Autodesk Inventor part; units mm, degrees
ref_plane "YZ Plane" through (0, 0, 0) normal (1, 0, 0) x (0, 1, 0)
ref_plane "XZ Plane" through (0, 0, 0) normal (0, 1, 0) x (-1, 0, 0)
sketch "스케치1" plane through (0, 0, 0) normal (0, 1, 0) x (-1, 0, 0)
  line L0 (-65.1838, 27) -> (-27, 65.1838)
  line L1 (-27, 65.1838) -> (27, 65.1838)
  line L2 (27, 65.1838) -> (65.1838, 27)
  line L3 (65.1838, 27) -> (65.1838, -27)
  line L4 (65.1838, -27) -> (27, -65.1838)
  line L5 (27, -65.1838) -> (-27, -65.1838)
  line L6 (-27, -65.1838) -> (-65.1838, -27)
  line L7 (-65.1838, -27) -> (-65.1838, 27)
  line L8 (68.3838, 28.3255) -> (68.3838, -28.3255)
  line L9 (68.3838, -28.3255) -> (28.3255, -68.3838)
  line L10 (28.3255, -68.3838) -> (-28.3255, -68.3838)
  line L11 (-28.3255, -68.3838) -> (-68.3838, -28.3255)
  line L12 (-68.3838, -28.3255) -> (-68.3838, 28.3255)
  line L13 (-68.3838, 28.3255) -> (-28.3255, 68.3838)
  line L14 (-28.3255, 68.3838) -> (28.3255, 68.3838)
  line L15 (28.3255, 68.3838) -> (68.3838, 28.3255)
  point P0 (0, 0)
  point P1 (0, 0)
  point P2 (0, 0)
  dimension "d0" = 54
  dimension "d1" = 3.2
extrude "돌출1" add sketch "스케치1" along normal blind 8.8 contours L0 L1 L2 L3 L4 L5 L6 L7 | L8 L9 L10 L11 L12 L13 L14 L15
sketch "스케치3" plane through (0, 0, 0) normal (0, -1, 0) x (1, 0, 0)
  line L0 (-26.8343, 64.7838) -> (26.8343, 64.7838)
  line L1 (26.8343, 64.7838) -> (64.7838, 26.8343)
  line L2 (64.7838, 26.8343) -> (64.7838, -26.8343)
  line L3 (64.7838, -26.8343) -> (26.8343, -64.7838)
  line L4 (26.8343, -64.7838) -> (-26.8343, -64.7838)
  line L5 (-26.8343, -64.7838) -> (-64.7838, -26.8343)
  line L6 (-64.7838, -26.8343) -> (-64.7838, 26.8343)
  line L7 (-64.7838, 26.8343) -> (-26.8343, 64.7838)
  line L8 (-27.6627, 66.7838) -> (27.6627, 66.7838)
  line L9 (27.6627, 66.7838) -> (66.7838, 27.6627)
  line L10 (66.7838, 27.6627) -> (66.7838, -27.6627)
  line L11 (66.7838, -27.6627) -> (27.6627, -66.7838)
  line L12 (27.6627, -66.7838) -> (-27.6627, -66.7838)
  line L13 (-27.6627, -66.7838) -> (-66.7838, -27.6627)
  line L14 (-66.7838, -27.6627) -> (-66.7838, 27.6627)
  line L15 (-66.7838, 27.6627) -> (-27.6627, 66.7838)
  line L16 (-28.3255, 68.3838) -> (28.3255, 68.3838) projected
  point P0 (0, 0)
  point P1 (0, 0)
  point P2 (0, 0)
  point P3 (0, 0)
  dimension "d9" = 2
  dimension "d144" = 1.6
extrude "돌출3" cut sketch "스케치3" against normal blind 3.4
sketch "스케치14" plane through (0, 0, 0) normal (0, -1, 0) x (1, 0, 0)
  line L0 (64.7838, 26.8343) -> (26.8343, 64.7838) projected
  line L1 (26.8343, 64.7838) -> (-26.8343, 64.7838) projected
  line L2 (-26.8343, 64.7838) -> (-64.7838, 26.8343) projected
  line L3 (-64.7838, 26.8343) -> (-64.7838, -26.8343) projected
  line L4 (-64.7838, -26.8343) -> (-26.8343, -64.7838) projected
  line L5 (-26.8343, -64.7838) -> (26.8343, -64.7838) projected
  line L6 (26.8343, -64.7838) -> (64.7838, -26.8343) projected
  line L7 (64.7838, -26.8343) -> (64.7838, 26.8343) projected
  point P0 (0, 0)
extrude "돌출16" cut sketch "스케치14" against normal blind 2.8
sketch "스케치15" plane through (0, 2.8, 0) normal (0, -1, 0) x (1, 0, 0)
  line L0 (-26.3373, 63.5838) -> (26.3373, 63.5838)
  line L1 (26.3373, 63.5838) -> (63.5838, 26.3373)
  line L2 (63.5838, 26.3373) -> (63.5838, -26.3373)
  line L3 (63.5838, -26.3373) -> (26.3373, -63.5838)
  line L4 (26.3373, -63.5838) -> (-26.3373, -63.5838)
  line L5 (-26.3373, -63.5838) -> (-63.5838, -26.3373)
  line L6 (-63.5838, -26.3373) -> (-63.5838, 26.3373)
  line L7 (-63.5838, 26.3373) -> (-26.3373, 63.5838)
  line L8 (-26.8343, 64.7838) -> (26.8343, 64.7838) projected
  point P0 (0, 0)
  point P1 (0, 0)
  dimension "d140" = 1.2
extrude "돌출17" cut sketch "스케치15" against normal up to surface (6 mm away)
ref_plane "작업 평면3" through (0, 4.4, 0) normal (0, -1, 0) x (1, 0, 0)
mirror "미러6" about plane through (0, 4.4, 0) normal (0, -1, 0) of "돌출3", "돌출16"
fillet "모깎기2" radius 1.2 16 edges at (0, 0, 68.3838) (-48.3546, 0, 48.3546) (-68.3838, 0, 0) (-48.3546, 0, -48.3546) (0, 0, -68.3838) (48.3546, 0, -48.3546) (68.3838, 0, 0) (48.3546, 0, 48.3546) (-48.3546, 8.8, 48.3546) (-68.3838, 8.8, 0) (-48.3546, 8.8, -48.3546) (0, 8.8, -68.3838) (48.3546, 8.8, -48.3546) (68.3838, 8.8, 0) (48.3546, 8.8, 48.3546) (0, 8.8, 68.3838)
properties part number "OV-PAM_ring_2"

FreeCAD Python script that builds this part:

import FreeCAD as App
import Part
import Sketcher


def edges_at(feature, points):
    """Names of the edges that pass closest to the given points."""
    edges = feature.Shape.Edges
    near = lambda p: min(range(len(edges)), key=lambda i: edges[i].distToShape(Part.Vertex(*p))[0])
    return sorted({f"Edge{near(p) + 1}" for p in points})

doc = App.newDocument("Part")
body = doc.addObject("PartDesign::Body", "Body")

# Sketch on XZ plane
sketch1 = body.newObject("Sketcher::SketchObject", "Sketch")
sketch1.AttachmentSupport = (doc.getObject("XZ_Plane"), [""])
sketch1.MapMode = "FlatFace"
sketch1.addGeometry(Part.LineSegment(App.Vector(-68.3838, -28.3255, 0), App.Vector(-68.3838, 28.3255, 0)), False)
sketch1.addGeometry(Part.LineSegment(App.Vector(-68.3838, 28.3255, 0), App.Vector(-28.3255, 68.3838, 0)), False)
sketch1.addGeometry(Part.LineSegment(App.Vector(-28.3255, 68.3838, 0), App.Vector(28.3255, 68.3838, 0)), False)
sketch1.addGeometry(Part.LineSegment(App.Vector(28.3255, 68.3838, 0), App.Vector(68.3838, 28.3255, 0)), False)
sketch1.addGeometry(Part.LineSegment(App.Vector(68.3838, 28.3255, 0), App.Vector(68.3838, -28.3255, 0)), False)
sketch1.addGeometry(Part.LineSegment(App.Vector(68.3838, -28.3255, 0), App.Vector(28.3255, -68.3838, 0)), False)
sketch1.addGeometry(Part.LineSegment(App.Vector(28.3255, -68.3838, 0), App.Vector(-28.3255, -68.3838, 0)), False)
sketch1.addGeometry(Part.LineSegment(App.Vector(-28.3255, -68.3838, 0), App.Vector(-68.3838, -28.3255, 0)), False)
sketch1.addConstraint(Sketcher.Constraint("Coincident", 0, 2, 1, 1))
sketch1.addConstraint(Sketcher.Constraint("Coincident", 1, 2, 2, 1))
sketch1.addConstraint(Sketcher.Constraint("Coincident", 2, 2, 3, 1))
sketch1.addConstraint(Sketcher.Constraint("Coincident", 3, 2, 4, 1))
sketch1.addConstraint(Sketcher.Constraint("Coincident", 4, 2, 5, 1))
sketch1.addConstraint(Sketcher.Constraint("Coincident", 5, 2, 6, 1))
sketch1.addConstraint(Sketcher.Constraint("Coincident", 6, 2, 7, 1))
sketch1.addConstraint(Sketcher.Constraint("Coincident", 7, 2, 0, 1))
sketch1.addConstraint(Sketcher.Constraint("Vertical", 0))
sketch1.addConstraint(Sketcher.Constraint("Horizontal", 2))
sketch1.addConstraint(Sketcher.Constraint("Vertical", 4))
sketch1.addConstraint(Sketcher.Constraint("Horizontal", 6))
sketch1.addConstraint(Sketcher.Constraint("Symmetric", 0, 2, 4, 2, -1, 1))
sketch1.addConstraint(Sketcher.Constraint("Symmetric", 1, 2, 5, 2, -1, 1))
sketch1.addConstraint(Sketcher.Constraint("Perpendicular", 1, 3))
sketch1.addConstraint(Sketcher.Constraint("Perpendicular", 5, 7))
sketch1.addConstraint(Sketcher.Constraint("Horizontal", 0, 2, 3, 2))
sketch1.addConstraint(Sketcher.Constraint("Horizontal", 4, 2, 7, 2))
sketch1.addConstraint(Sketcher.Constraint("Vertical", 2, 2, 5, 2))
sketch1.addConstraint(Sketcher.Constraint("Equal", 6, 0))
sketch1.addConstraint(Sketcher.Constraint("DistanceX", 2, 1, 2, 2, 56.651))
sketch1.addConstraint(Sketcher.Constraint("Distance", 1, 56.651))
pad1 = body.newObject("PartDesign::Pad", "Pad")
pad1.Profile = sketch1
pad1.Length = 8.8
pad1.Reversed = True

# Sketch on XZ plane
sketch2 = body.newObject("Sketcher::SketchObject", "Sketch001")
sketch2.AttachmentSupport = (doc.getObject("XZ_Plane"), [""])
sketch2.MapMode = "FlatFace"
sketch2.addGeometry(Part.LineSegment(App.Vector(27.6627, 66.7838, 0), App.Vector(-27.6627, 66.7838, 0)), False)
sketch2.addGeometry(Part.LineSegment(App.Vector(-27.6627, 66.7838, 0), App.Vector(-66.7838, 27.6627, 0)), False)
sketch2.addGeometry(Part.LineSegment(App.Vector(-66.7838, 27.6627, 0), App.Vector(-66.7838, -27.6627, 0)), False)
sketch2.addGeometry(Part.LineSegment(App.Vector(-66.7838, -27.6627, 0), App.Vector(-27.6627, -66.7838, 0)), False)
sketch2.addGeometry(Part.LineSegment(App.Vector(-27.6627, -66.7838, 0), App.Vector(27.6627, -66.7838, 0)), False)
sketch2.addGeometry(Part.LineSegment(App.Vector(27.6627, -66.7838, 0), App.Vector(66.7838, -27.6627, 0)), False)
sketch2.addGeometry(Part.LineSegment(App.Vector(66.7838, -27.6627, 0), App.Vector(66.7838, 27.6627, 0)), False)
sketch2.addGeometry(Part.LineSegment(App.Vector(66.7838, 27.6627, 0), App.Vector(27.6627, 66.7838, 0)), False)
sketch2.addGeometry(Part.LineSegment(App.Vector(-64.7838, 26.8343, 0), App.Vector(-26.8343, 64.7838, 0)), False)
sketch2.addGeometry(Part.LineSegment(App.Vector(-26.8343, 64.7838, 0), App.Vector(26.8343, 64.7838, 0)), False)
sketch2.addGeometry(Part.LineSegment(App.Vector(26.8343, 64.7838, 0), App.Vector(64.7838, 26.8343, 0)), False)
sketch2.addGeometry(Part.LineSegment(App.Vector(64.7838, 26.8343, 0), App.Vector(64.7838, -26.8343, 0)), False)
sketch2.addGeometry(Part.LineSegment(App.Vector(64.7838, -26.8343, 0), App.Vector(26.8343, -64.7838, 0)), False)
sketch2.addGeometry(Part.LineSegment(App.Vector(26.8343, -64.7838, 0), App.Vector(-26.8343, -64.7838, 0)), False)
sketch2.addGeometry(Part.LineSegment(App.Vector(-26.8343, -64.7838, 0), App.Vector(-64.7838, -26.8343, 0)), False)
sketch2.addGeometry(Part.LineSegment(App.Vector(-64.7838, -26.8343, 0), App.Vector(-64.7838, 26.8343, 0)), False)
sketch2.addConstraint(Sketcher.Constraint("Coincident", 0, 2, 1, 1))
sketch2.addConstraint(Sketcher.Constraint("Coincident", 1, 2, 2, 1))
sketch2.addConstraint(Sketcher.Constraint("Coincident", 2, 2, 3, 1))
sketch2.addConstraint(Sketcher.Constraint("Coincident", 3, 2, 4, 1))
sketch2.addConstraint(Sketcher.Constraint("Coincident", 4, 2, 5, 1))
sketch2.addConstraint(Sketcher.Constraint("Coincident", 5, 2, 6, 1))
sketch2.addConstraint(Sketcher.Constraint("Coincident", 6, 2, 7, 1))
sketch2.addConstraint(Sketcher.Constraint("Coincident", 7, 2, 0, 1))
sketch2.addConstraint(Sketcher.Constraint("Coincident", 8, 2, 9, 1))
sketch2.addConstraint(Sketcher.Constraint("Coincident", 9, 2, 10, 1))
sketch2.addConstraint(Sketcher.Constraint("Coincident", 10, 2, 11, 1))
sketch2.addConstraint(Sketcher.Constraint("Coincident", 11, 2, 12, 1))
sketch2.addConstraint(Sketcher.Constraint("Coincident", 12, 2, 13, 1))
sketch2.addConstraint(Sketcher.Constraint("Coincident", 13, 2, 14, 1))
sketch2.addConstraint(Sketcher.Constraint("Coincident", 14, 2, 15, 1))
sketch2.addConstraint(Sketcher.Constraint("Coincident", 15, 2, 8, 1))
sketch2.addConstraint(Sketcher.Constraint("Horizontal", 0))
sketch2.addConstraint(Sketcher.Constraint("Vertical", 2))
sketch2.addConstraint(Sketcher.Constraint("Horizontal", 4))
sketch2.addConstraint(Sketcher.Constraint("Vertical", 6))
sketch2.addConstraint(Sketcher.Constraint("Horizontal", 9))
sketch2.addConstraint(Sketcher.Constraint("Vertical", 11))
sketch2.addConstraint(Sketcher.Constraint("Horizontal", 13))
sketch2.addConstraint(Sketcher.Constraint("Vertical", 15))
sketch2.addConstraint(Sketcher.Constraint("Symmetric", 0, 2, 4, 2, -1, 1))
sketch2.addConstraint(Sketcher.Constraint("Symmetric", 1, 2, 5, 2, -1, 1))
sketch2.addConstraint(Sketcher.Constraint("Symmetric", 8, 2, 12, 2, -1, 1))
sketch2.addConstraint(Sketcher.Constraint("Symmetric", 10, 2, 14, 2, -1, 1))
sketch2.addConstraint(Sketcher.Constraint("Perpendicular", 1, 3))
sketch2.addConstraint(Sketcher.Constraint("Perpendicular", 5, 7))
sketch2.addConstraint(Sketcher.Constraint("Perpendicular", 7, 8))
sketch2.addConstraint(Sketcher.Constraint("Perpendicular", 8, 10))
sketch2.addConstraint(Sketcher.Constraint("Perpendicular", 10, 12))
sketch2.addConstraint(Sketcher.Constraint("Perpendicular", 12, 14))
sketch2.addConstraint(Sketcher.Constraint("Horizontal", 2, 2, 5, 2))
sketch2.addConstraint(Sketcher.Constraint("Horizontal", 1, 2, 6, 2))
sketch2.addConstraint(Sketcher.Constraint("Horizontal", 11, 2, 14, 2))
sketch2.addConstraint(Sketcher.Constraint("Vertical", 0, 2, 3, 2))
sketch2.addConstraint(Sketcher.Constraint("Equal", 4, 2))
sketch2.addConstraint(Sketcher.Constraint("Equal", 13, 11))
sketch2.addConstraint(Sketcher.Constraint("DistanceY", 8, 2, 0, 2, 2.0))
sketch2.addConstraint(Sketcher.Constraint("DistanceX", 0, 2, 0, 1, 55.3254))
sketch2.addConstraint(Sketcher.Constraint("DistanceX", 9, 1, 9, 2, 53.6686))
sketch2.addConstraint(Sketcher.Constraint("DistanceX", 1, 2, 0, 2, 39.121))
pocket1 = body.newObject("PartDesign::Pocket", "Pocket")
pocket1.Profile = sketch2
pocket1.Length = 3.4

# Sketch on XZ plane
sketch3 = body.newObject("Sketcher::SketchObject", "Sketch002")
sketch3.AttachmentSupport = (doc.getObject("XZ_Plane"), [""])
sketch3.MapMode = "FlatFace"
sketch3.addGeometry(Part.LineSegment(App.Vector(64.7838, -26.8343, 0), App.Vector(64.7838, 26.8343, 0)), False)
sketch3.addGeometry(Part.LineSegment(App.Vector(64.7838, 26.8343, 0), App.Vector(26.8343, 64.7838, 0)), False)
sketch3.addGeometry(Part.LineSegment(App.Vector(26.8343, 64.7838, 0), App.Vector(-26.8343, 64.7838, 0)), False)
sketch3.addGeometry(Part.LineSegment(App.Vector(-26.8343, 64.7838, 0), App.Vector(-64.7838, 26.8343, 0)), False)
sketch3.addGeometry(Part.LineSegment(App.Vector(-64.7838, 26.8343, 0), App.Vector(-64.7838, -26.8343, 0)), False)
sketch3.addGeometry(Part.LineSegment(App.Vector(-64.7838, -26.8343, 0), App.Vector(-26.8343, -64.7838, 0)), False)
sketch3.addGeometry(Part.LineSegment(App.Vector(-26.8343, -64.7838, 0), App.Vector(26.8343, -64.7838, 0)), False)
sketch3.addGeometry(Part.LineSegment(App.Vector(26.8343, -64.7838, 0), App.Vector(64.7838, -26.8343, 0)), False)
sketch3.addConstraint(Sketcher.Constraint("Coincident", 0, 2, 1, 1))
sketch3.addConstraint(Sketcher.Constraint("Coincident", 1, 2, 2, 1))
sketch3.addConstraint(Sketcher.Constraint("Coincident", 2, 2, 3, 1))
sketch3.addConstraint(Sketcher.Constraint("Coincident", 3, 2, 4, 1))
sketch3.addConstraint(Sketcher.Constraint("Coincident", 4, 2, 5, 1))
sketch3.addConstraint(Sketcher.Constraint("Coincident", 5, 2, 6, 1))
sketch3.addConstraint(Sketcher.Constraint("Coincident", 6, 2, 7, 1))
sketch3.addConstraint(Sketcher.Constraint("Coincident", 7, 2, 0, 1))
sketch3.addConstraint(Sketcher.Constraint("Vertical", 0))
sketch3.addConstraint(Sketcher.Constraint("Horizontal", 2))
sketch3.addConstraint(Sketcher.Constraint("Vertical", 4))
sketch3.addConstraint(Sketcher.Constraint("Horizontal", 6))
sketch3.addConstraint(Sketcher.Constraint("Symmetric", 0, 2, 4, 2, -1, 1))
sketch3.addConstraint(Sketcher.Constraint("Symmetric", 1, 2, 5, 2, -1, 1))
sketch3.addConstraint(Sketcher.Constraint("Perpendicular", 1, 3))
sketch3.addConstraint(Sketcher.Constraint("Perpendicular", 5, 7))
sketch3.addConstraint(Sketcher.Constraint("Horizontal", 0, 2, 3, 2))
sketch3.addConstraint(Sketcher.Constraint("Horizontal", 4, 2, 7, 2))
sketch3.addConstraint(Sketcher.Constraint("Vertical", 2, 2, 5, 2))
sketch3.addConstraint(Sketcher.Constraint("Equal", 6, 0))
sketch3.addConstraint(Sketcher.Constraint("DistanceX", 2, 2, 2, 1, 53.6686))
sketch3.addConstraint(Sketcher.Constraint("DistanceX", 2, 2, 0, 2, 91.618))
pocket2 = body.newObject("PartDesign::Pocket", "Pocket001")
pocket2.Profile = sketch3
pocket2.Length = 2.8

# Sketch on XZ plane
sketch4 = body.newObject("Sketcher::SketchObject", "Sketch003")
sketch4.AttachmentSupport = (doc.getObject("XZ_Plane"), [""])
sketch4.MapMode = "FlatFace"
sketch4.AttachmentOffset = App.Placement(App.Vector(0, 0, -2.8), App.Rotation())
sketch4.addGeometry(Part.LineSegment(App.Vector(26.3373, 63.5838, 0), App.Vector(-26.3373, 63.5838, 0)), False)
sketch4.addGeometry(Part.LineSegment(App.Vector(-26.3373, 63.5838, 0), App.Vector(-63.5838, 26.3373, 0)), False)
sketch4.addGeometry(Part.LineSegment(App.Vector(-63.5838, 26.3373, 0), App.Vector(-63.5838, -26.3373, 0)), False)
sketch4.addGeometry(Part.LineSegment(App.Vector(-63.5838, -26.3373, 0), App.Vector(-26.3373, -63.5838, 0)), False)
sketch4.addGeometry(Part.LineSegment(App.Vector(-26.3373, -63.5838, 0), App.Vector(26.3373, -63.5838, 0)), False)
sketch4.addGeometry(Part.LineSegment(App.Vector(26.3373, -63.5838, 0), App.Vector(63.5838, -26.3373, 0)), False)
sketch4.addGeometry(Part.LineSegment(App.Vector(63.5838, -26.3373, 0), App.Vector(63.5838, 26.3373, 0)), False)
sketch4.addGeometry(Part.LineSegment(App.Vector(63.5838, 26.3373, 0), App.Vector(26.3373, 63.5838, 0)), False)
sketch4.addConstraint(Sketcher.Constraint("Coincident", 0, 2, 1, 1))
sketch4.addConstraint(Sketcher.Constraint("Coincident", 1, 2, 2, 1))
sketch4.addConstraint(Sketcher.Constraint("Coincident", 2, 2, 3, 1))
sketch4.addConstraint(Sketcher.Constraint("Coincident", 3, 2, 4, 1))
sketch4.addConstraint(Sketcher.Constraint("Coincident", 4, 2, 5, 1))
sketch4.addConstraint(Sketcher.Constraint("Coincident", 5, 2, 6, 1))
sketch4.addConstraint(Sketcher.Constraint("Coincident", 6, 2, 7, 1))
sketch4.addConstraint(Sketcher.Constraint("Coincident", 7, 2, 0, 1))
sketch4.addConstraint(Sketcher.Constraint("Horizontal", 0))
sketch4.addConstraint(Sketcher.Constraint("Vertical", 2))
sketch4.addConstraint(Sketcher.Constraint("Horizontal", 4))
sketch4.addConstraint(Sketcher.Constraint("Vertical", 6))
sketch4.addConstraint(Sketcher.Constraint("Symmetric", 0, 2, 4, 2, -1, 1))
sketch4.addConstraint(Sketcher.Constraint("Symmetric", 1, 2, 5, 2, -1, 1))
sketch4.addConstraint(Sketcher.Constraint("Perpendicular", 1, 3))
sketch4.addConstraint(Sketcher.Constraint("Perpendicular", 5, 7))
sketch4.addConstraint(Sketcher.Constraint("Horizontal", 2, 2, 5, 2))
sketch4.addConstraint(Sketcher.Constraint("Horizontal", 1, 2, 6, 2))
sketch4.addConstraint(Sketcher.Constraint("Vertical", 0, 2, 3, 2))
sketch4.addConstraint(Sketcher.Constraint("Equal", 4, 2))
sketch4.addConstraint(Sketcher.Constraint("DistanceX", 0, 2, 0, 1, 52.6746))
sketch4.addConstraint(Sketcher.Constraint("DistanceY", 2, 2, 0, 2, 89.921))
pocket3 = body.newObject("PartDesign::Pocket", "Pocket002")
pocket3.Profile = sketch4
pocket3.Length = 6
doc.recompute()

datumplane = body.newObject("PartDesign::Plane", "DatumPlane")
datumplane.AttachmentSupport = (doc.getObject("XZ_Plane"), [""])
datumplane.MapMode = "FlatFace"
datumplane.AttachmentOffset = App.Placement(App.Vector(0, 0, -4.4), App.Rotation())
mirrored = body.newObject("PartDesign::Mirrored", "Mirrored")
mirrored.Originals = [pocket1, pocket2]
mirrored.MirrorPlane = (datumplane, [""])
body.Tip = mirrored
doc.recompute()

fillet = body.newObject("PartDesign::Fillet", "Fillet")
fillet.Base = (mirrored, edges_at(mirrored, [
    (0, 0, 68.384),
    (-48.355, 0, 48.355),
    (-68.384, 0, 0),
    (-48.355, 0, -48.355),
    (0, 0, -68.384),
    (48.355, 0, -48.355),
    (68.384, 0, 0),
    (48.355, 0, 48.355),
    (-48.355, 8.8, 48.355),
    (-68.384, 8.8, 0),
    (-48.355, 8.8, -48.355),
    (0, 8.8, -68.384),
    (48.355, 8.8, -48.355),
    (68.384, 8.8, 0),
    (48.355, 8.8, 48.355),
    (0, 8.8, 68.384),
]))
fillet.Radius = 1.2

doc.recompute()
